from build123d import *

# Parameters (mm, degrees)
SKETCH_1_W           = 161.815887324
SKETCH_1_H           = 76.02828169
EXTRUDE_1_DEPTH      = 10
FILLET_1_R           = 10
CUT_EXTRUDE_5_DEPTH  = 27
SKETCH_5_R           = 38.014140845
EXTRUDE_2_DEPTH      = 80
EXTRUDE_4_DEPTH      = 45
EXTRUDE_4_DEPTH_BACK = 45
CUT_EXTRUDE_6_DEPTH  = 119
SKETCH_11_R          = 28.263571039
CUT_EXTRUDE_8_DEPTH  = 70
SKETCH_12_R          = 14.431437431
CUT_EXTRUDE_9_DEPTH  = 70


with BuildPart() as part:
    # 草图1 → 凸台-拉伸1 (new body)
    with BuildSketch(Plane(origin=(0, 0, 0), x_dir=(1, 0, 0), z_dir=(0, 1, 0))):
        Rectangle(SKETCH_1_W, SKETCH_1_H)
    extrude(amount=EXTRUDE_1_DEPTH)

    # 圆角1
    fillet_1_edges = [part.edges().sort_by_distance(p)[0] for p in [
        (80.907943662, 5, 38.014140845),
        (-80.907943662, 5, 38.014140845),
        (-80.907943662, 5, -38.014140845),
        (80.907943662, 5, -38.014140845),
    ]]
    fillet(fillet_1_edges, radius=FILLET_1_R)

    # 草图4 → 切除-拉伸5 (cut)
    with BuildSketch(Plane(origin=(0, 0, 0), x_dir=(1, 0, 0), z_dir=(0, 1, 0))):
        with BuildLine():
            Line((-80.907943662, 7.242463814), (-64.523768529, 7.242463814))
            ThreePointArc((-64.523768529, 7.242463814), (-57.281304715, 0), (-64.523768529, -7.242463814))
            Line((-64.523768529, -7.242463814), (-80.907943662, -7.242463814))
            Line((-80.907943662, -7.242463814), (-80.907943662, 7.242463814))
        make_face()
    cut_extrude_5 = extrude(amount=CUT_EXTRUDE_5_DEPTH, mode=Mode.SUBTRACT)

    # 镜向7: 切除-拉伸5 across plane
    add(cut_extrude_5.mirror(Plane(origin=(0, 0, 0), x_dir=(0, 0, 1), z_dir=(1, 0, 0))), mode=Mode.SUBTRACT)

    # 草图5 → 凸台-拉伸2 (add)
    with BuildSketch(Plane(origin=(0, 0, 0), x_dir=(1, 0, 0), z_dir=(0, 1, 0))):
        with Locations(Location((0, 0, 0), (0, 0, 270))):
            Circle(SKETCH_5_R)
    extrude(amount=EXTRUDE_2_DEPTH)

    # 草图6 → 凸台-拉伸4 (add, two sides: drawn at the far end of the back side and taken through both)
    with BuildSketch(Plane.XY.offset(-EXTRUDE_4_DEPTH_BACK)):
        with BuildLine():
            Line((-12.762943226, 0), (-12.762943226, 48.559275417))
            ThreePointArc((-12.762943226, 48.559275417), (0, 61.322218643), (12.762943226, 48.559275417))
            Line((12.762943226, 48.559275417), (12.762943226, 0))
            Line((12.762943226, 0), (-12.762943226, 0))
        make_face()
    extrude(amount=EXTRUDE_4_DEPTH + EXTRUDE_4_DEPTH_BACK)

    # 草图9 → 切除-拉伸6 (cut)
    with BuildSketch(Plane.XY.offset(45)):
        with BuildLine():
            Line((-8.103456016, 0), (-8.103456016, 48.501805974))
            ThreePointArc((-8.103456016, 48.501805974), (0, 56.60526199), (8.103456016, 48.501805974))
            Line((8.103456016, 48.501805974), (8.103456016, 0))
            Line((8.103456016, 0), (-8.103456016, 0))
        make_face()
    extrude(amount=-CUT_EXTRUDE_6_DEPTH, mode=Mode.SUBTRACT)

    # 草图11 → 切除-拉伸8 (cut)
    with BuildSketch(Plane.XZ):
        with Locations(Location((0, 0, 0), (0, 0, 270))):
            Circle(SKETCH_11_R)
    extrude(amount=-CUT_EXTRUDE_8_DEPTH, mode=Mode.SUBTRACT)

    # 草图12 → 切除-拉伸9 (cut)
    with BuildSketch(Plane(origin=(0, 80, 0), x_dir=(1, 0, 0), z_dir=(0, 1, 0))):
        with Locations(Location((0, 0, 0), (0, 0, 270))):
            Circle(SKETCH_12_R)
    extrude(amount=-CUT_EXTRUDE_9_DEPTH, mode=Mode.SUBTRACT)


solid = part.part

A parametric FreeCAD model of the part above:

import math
import FreeCAD as App
import Part
import Sketcher

V = App.Vector


def edges_at(feature, points):
    """Names of the edges that pass closest to the given points."""
    edges = feature.Shape.Edges
    near = lambda p: min(range(len(edges)), key=lambda i: edges[i].distToShape(Part.Vertex(*p))[0])
    return sorted({f"Edge{near(p) + 1}" for p in points})

doc = App.newDocument("Part")
body = doc.addObject("PartDesign::Body", "Body")

# Sketch on XZ plane
sketch1 = body.newObject("Sketcher::SketchObject", "Sketch")
sketch1.AttachmentSupport = (doc.getObject("XZ_Plane"), [""])
sketch1.MapMode = "FlatFace"
sketch1.addGeometry(Part.LineSegment(V(-81, -38, 0), V(-81, 38, 0)), False)
sketch1.addGeometry(Part.LineSegment(V(-81, 38, 0), V(81, 38, 0)), False)
sketch1.addGeometry(Part.LineSegment(V(81, 38, 0), V(81, -38, 0)), False)
sketch1.addGeometry(Part.LineSegment(V(81, -38, 0), V(-81, -38, 0)), False)
sketch1.addConstraint(Sketcher.Constraint("Coincident", 0, 2, 1, 1))
sketch1.addConstraint(Sketcher.Constraint("Coincident", 1, 2, 2, 1))
sketch1.addConstraint(Sketcher.Constraint("Coincident", 2, 2, 3, 1))
sketch1.addConstraint(Sketcher.Constraint("Coincident", 3, 2, 0, 1))
sketch1.addConstraint(Sketcher.Constraint("Vertical", 0))
sketch1.addConstraint(Sketcher.Constraint("Horizontal", 1))
sketch1.addConstraint(Sketcher.Constraint("Vertical", 2))
sketch1.addConstraint(Sketcher.Constraint("Horizontal", 3))
sketch1.addConstraint(Sketcher.Constraint("Symmetric", 0, 2, 2, 2, -1, 1))
sketch1.addConstraint(Sketcher.Constraint("DistanceY", 0, 1, 0, 2, 76.028282))
sketch1.addConstraint(Sketcher.Constraint("DistanceX", 1, 1, 1, 2, 161.815887))
pad1 = body.newObject("PartDesign::Pad", "Pad")
pad1.Profile = sketch1
pad1.Length = 10
pad1.Reversed = True
doc.recompute()

fillet = body.newObject("PartDesign::Fillet", "Fillet")
fillet.Base = (pad1, edges_at(pad1, [
    (80.908, 5, 38.014),
    (-80.908, 5, 38.014),
    (-80.908, 5, -38.014),
    (80.908, 5, -38.014),
]))
fillet.Radius = 10

# Sketch on XZ plane
sketch2 = body.newObject("Sketcher::SketchObject", "Sketch001")
sketch2.AttachmentSupport = (doc.getObject("XZ_Plane"), [""])
sketch2.MapMode = "FlatFace"
sketch2.addGeometry(Part.LineSegment(V(-65, -7, 0), V(-81, -7, 0)), False)
sketch2.addGeometry(Part.LineSegment(V(-81, -7, 0), V(-81, 7, 0)), False)
sketch2.addGeometry(Part.LineSegment(V(-81, 7, 0), V(-65, 7, 0)), False)
sketch2.addGeometry(Part.ArcOfCircle(Part.Circle(V(-65, 0, 0), V(0, 0, 1), 7), math.radians(-90), math.radians(90)), False)
sketch2.addConstraint(Sketcher.Constraint("Coincident", 0, 2, 1, 1))
sketch2.addConstraint(Sketcher.Constraint("Coincident", 1, 2, 2, 1))
sketch2.addConstraint(Sketcher.Constraint("Tangent", 2, 2, 3, 2))
sketch2.addConstraint(Sketcher.Constraint("Tangent", 3, 1, 0, 1))
sketch2.addConstraint(Sketcher.Constraint("Horizontal", 0))
sketch2.addConstraint(Sketcher.Constraint("Vertical", 1))
sketch2.addConstraint(Sketcher.Constraint("Horizontal", 2))
sketch2.addConstraint(Sketcher.Constraint("PointOnObject", 3, 3, -1))
sketch2.addConstraint(Sketcher.Constraint("Radius", 3, 7.242464))
sketch2.addConstraint(Sketcher.Constraint("DistanceX", 0, 2, 0, 1, 16.384175))
sketch2.addConstraint(Sketcher.Constraint("DistanceX", 3, 3, -1, 1, 64.523769))
pocket1 = body.newObject("PartDesign::Pocket", "Pocket")
pocket1.Profile = sketch2
pocket1.Length = 27
doc.recompute()

mirrored = body.newObject("PartDesign::Mirrored", "Mirrored")
mirrored.Originals = [pocket1]
mirrored.MirrorPlane = (doc.getObject("YZ_Plane"), [""])
body.Tip = mirrored

# Sketch on XZ plane
sketch3 = body.newObject("Sketcher::SketchObject", "Sketch002")
sketch3.AttachmentSupport = (doc.getObject("XZ_Plane"), [""])
sketch3.MapMode = "FlatFace"
sketch3.addGeometry(Part.Circle(V(0, 0, 0), V(0, 0, 1), 38), False)
sketch3.addConstraint(Sketcher.Constraint("Coincident", 0, 3, -1, 1))
sketch3.addConstraint(Sketcher.Constraint("Diameter", 0, 76.028282))
pad2 = body.newObject("PartDesign::Pad", "Pad001")
pad2.Profile = sketch3
pad2.Length = 80
pad2.Reversed = True

# Sketch on XY plane
sketch4 = body.newObject("Sketcher::SketchObject", "Sketch003")
sketch4.AttachmentSupport = (doc.getObject("XY_Plane"), [""])
sketch4.MapMode = "FlatFace"
sketch4.addGeometry(Part.LineSegment(V(-13, 49, 0), V(-13, 0, 0)), False)
sketch4.addGeometry(Part.LineSegment(V(-13, 0, 0), V(13, 0, 0)), False)
sketch4.addGeometry(Part.LineSegment(V(13, 0, 0), V(13, 49, 0)), False)
sketch4.addGeometry(Part.ArcOfCircle(Part.Circle(V(0, 49, 0), V(0, 0, 1), 13), math.radians(0), math.radians(180)), False)
sketch4.addConstraint(Sketcher.Constraint("Coincident", 0, 2, 1, 1))
sketch4.addConstraint(Sketcher.Constraint("Coincident", 1, 2, 2, 1))
sketch4.addConstraint(Sketcher.Constraint("Tangent", 2, 2, 3, 1))
sketch4.addConstraint(Sketcher.Constraint("Tangent", 3, 2, 0, 1))
sketch4.addConstraint(Sketcher.Constraint("Vertical", 0))
sketch4.addConstraint(Sketcher.Constraint("Horizontal", 1))
sketch4.addConstraint(Sketcher.Constraint("Vertical", 2))
sketch4.addConstraint(Sketcher.Constraint("Symmetric", 0, 2, 1, 2, -1, 1))
sketch4.addConstraint(Sketcher.Constraint("Radius", 3, 12.762943))
sketch4.addConstraint(Sketcher.Constraint("DistanceY", 0, 2, 0, 1, 48.559275))
pad3 = body.newObject("PartDesign::Pad", "Pad002")
pad3.Profile = sketch4
pad3.Type = "TwoLengths"
pad3.Length = 45
pad3.Length2 = 45

# Sketch on XY plane
sketch5 = body.newObject("Sketcher::SketchObject", "Sketch004")
sketch5.AttachmentSupport = (doc.getObject("XY_Plane"), [""])
sketch5.MapMode = "FlatFace"
sketch5.AttachmentOffset = App.Placement(V(0, 0, 45), App.Rotation())
sketch5.addGeometry(Part.LineSegment(V(-8, 49, 0), V(-8, 0, 0)), False)
sketch5.addGeometry(Part.LineSegment(V(-8, 0, 0), V(8, 0, 0)), False)
sketch5.addGeometry(Part.LineSegment(V(8, 0, 0), V(8, 49, 0)), False)
sketch5.addGeometry(Part.ArcOfCircle(Part.Circle(V(0, 49, 0), V(0, 0, 1), 8), math.radians(0), math.radians(180)), False)
sketch5.addConstraint(Sketcher.Constraint("Coincident", 0, 2, 1, 1))
sketch5.addConstraint(Sketcher.Constraint("Coincident", 1, 2, 2, 1))
sketch5.addConstraint(Sketcher.Constraint("Tangent", 2, 2, 3, 1))
sketch5.addConstraint(Sketcher.Constraint("Tangent", 3, 2, 0, 1))
sketch5.addConstraint(Sketcher.Constraint("Vertical", 0))
sketch5.addConstraint(Sketcher.Constraint("Horizontal", 1))
sketch5.addConstraint(Sketcher.Constraint("Vertical", 2))
sketch5.addConstraint(Sketcher.Constraint("Symmetric", 0, 2, 1, 2, -1, 1))
sketch5.addConstraint(Sketcher.Constraint("Radius", 3, 8.103456))
sketch5.addConstraint(Sketcher.Constraint("DistanceY", 0, 2, 0, 1, 48.501806))
pocket2 = body.newObject("PartDesign::Pocket", "Pocket001")
pocket2.Profile = sketch5
pocket2.Length = 119

# Sketch on XZ plane
sketch6 = body.newObject("Sketcher::SketchObject", "Sketch005")
sketch6.AttachmentSupport = (doc.getObject("XZ_Plane"), [""])
sketch6.MapMode = "FlatFace"
sketch6.addGeometry(Part.Circle(V(0, 0, 0), V(0, 0, 1), 28), False)
sketch6.addConstraint(Sketcher.Constraint("Coincident", 0, 3, -1, 1))
sketch6.addConstraint(Sketcher.Constraint("Diameter", 0, 56.527142))
pocket3 = body.newObject("PartDesign::Pocket", "Pocket002")
pocket3.Profile = sketch6
pocket3.Length = 70

# Sketch on XZ plane
sketch7 = body.newObject("Sketcher::SketchObject", "Sketch006")
sketch7.AttachmentSupport = (doc.getObject("XZ_Plane"), [""])
sketch7.MapMode = "FlatFace"
sketch7.AttachmentOffset = App.Placement(V(0, 0, -80), App.Rotation())
sketch7.addGeometry(Part.Circle(V(0, 0, 0), V(0, 0, 1), 14), False)
sketch7.addConstraint(Sketcher.Constraint("Coincident", 0, 3, -1, 1))
sketch7.addConstraint(Sketcher.Constraint("Diameter", 0, 28.862875))
pocket4 = body.newObject("PartDesign::Pocket", "Pocket003")
pocket4.Profile = sketch7
pocket4.Length = 70
pocket4.Reversed = True

doc.recompute()
